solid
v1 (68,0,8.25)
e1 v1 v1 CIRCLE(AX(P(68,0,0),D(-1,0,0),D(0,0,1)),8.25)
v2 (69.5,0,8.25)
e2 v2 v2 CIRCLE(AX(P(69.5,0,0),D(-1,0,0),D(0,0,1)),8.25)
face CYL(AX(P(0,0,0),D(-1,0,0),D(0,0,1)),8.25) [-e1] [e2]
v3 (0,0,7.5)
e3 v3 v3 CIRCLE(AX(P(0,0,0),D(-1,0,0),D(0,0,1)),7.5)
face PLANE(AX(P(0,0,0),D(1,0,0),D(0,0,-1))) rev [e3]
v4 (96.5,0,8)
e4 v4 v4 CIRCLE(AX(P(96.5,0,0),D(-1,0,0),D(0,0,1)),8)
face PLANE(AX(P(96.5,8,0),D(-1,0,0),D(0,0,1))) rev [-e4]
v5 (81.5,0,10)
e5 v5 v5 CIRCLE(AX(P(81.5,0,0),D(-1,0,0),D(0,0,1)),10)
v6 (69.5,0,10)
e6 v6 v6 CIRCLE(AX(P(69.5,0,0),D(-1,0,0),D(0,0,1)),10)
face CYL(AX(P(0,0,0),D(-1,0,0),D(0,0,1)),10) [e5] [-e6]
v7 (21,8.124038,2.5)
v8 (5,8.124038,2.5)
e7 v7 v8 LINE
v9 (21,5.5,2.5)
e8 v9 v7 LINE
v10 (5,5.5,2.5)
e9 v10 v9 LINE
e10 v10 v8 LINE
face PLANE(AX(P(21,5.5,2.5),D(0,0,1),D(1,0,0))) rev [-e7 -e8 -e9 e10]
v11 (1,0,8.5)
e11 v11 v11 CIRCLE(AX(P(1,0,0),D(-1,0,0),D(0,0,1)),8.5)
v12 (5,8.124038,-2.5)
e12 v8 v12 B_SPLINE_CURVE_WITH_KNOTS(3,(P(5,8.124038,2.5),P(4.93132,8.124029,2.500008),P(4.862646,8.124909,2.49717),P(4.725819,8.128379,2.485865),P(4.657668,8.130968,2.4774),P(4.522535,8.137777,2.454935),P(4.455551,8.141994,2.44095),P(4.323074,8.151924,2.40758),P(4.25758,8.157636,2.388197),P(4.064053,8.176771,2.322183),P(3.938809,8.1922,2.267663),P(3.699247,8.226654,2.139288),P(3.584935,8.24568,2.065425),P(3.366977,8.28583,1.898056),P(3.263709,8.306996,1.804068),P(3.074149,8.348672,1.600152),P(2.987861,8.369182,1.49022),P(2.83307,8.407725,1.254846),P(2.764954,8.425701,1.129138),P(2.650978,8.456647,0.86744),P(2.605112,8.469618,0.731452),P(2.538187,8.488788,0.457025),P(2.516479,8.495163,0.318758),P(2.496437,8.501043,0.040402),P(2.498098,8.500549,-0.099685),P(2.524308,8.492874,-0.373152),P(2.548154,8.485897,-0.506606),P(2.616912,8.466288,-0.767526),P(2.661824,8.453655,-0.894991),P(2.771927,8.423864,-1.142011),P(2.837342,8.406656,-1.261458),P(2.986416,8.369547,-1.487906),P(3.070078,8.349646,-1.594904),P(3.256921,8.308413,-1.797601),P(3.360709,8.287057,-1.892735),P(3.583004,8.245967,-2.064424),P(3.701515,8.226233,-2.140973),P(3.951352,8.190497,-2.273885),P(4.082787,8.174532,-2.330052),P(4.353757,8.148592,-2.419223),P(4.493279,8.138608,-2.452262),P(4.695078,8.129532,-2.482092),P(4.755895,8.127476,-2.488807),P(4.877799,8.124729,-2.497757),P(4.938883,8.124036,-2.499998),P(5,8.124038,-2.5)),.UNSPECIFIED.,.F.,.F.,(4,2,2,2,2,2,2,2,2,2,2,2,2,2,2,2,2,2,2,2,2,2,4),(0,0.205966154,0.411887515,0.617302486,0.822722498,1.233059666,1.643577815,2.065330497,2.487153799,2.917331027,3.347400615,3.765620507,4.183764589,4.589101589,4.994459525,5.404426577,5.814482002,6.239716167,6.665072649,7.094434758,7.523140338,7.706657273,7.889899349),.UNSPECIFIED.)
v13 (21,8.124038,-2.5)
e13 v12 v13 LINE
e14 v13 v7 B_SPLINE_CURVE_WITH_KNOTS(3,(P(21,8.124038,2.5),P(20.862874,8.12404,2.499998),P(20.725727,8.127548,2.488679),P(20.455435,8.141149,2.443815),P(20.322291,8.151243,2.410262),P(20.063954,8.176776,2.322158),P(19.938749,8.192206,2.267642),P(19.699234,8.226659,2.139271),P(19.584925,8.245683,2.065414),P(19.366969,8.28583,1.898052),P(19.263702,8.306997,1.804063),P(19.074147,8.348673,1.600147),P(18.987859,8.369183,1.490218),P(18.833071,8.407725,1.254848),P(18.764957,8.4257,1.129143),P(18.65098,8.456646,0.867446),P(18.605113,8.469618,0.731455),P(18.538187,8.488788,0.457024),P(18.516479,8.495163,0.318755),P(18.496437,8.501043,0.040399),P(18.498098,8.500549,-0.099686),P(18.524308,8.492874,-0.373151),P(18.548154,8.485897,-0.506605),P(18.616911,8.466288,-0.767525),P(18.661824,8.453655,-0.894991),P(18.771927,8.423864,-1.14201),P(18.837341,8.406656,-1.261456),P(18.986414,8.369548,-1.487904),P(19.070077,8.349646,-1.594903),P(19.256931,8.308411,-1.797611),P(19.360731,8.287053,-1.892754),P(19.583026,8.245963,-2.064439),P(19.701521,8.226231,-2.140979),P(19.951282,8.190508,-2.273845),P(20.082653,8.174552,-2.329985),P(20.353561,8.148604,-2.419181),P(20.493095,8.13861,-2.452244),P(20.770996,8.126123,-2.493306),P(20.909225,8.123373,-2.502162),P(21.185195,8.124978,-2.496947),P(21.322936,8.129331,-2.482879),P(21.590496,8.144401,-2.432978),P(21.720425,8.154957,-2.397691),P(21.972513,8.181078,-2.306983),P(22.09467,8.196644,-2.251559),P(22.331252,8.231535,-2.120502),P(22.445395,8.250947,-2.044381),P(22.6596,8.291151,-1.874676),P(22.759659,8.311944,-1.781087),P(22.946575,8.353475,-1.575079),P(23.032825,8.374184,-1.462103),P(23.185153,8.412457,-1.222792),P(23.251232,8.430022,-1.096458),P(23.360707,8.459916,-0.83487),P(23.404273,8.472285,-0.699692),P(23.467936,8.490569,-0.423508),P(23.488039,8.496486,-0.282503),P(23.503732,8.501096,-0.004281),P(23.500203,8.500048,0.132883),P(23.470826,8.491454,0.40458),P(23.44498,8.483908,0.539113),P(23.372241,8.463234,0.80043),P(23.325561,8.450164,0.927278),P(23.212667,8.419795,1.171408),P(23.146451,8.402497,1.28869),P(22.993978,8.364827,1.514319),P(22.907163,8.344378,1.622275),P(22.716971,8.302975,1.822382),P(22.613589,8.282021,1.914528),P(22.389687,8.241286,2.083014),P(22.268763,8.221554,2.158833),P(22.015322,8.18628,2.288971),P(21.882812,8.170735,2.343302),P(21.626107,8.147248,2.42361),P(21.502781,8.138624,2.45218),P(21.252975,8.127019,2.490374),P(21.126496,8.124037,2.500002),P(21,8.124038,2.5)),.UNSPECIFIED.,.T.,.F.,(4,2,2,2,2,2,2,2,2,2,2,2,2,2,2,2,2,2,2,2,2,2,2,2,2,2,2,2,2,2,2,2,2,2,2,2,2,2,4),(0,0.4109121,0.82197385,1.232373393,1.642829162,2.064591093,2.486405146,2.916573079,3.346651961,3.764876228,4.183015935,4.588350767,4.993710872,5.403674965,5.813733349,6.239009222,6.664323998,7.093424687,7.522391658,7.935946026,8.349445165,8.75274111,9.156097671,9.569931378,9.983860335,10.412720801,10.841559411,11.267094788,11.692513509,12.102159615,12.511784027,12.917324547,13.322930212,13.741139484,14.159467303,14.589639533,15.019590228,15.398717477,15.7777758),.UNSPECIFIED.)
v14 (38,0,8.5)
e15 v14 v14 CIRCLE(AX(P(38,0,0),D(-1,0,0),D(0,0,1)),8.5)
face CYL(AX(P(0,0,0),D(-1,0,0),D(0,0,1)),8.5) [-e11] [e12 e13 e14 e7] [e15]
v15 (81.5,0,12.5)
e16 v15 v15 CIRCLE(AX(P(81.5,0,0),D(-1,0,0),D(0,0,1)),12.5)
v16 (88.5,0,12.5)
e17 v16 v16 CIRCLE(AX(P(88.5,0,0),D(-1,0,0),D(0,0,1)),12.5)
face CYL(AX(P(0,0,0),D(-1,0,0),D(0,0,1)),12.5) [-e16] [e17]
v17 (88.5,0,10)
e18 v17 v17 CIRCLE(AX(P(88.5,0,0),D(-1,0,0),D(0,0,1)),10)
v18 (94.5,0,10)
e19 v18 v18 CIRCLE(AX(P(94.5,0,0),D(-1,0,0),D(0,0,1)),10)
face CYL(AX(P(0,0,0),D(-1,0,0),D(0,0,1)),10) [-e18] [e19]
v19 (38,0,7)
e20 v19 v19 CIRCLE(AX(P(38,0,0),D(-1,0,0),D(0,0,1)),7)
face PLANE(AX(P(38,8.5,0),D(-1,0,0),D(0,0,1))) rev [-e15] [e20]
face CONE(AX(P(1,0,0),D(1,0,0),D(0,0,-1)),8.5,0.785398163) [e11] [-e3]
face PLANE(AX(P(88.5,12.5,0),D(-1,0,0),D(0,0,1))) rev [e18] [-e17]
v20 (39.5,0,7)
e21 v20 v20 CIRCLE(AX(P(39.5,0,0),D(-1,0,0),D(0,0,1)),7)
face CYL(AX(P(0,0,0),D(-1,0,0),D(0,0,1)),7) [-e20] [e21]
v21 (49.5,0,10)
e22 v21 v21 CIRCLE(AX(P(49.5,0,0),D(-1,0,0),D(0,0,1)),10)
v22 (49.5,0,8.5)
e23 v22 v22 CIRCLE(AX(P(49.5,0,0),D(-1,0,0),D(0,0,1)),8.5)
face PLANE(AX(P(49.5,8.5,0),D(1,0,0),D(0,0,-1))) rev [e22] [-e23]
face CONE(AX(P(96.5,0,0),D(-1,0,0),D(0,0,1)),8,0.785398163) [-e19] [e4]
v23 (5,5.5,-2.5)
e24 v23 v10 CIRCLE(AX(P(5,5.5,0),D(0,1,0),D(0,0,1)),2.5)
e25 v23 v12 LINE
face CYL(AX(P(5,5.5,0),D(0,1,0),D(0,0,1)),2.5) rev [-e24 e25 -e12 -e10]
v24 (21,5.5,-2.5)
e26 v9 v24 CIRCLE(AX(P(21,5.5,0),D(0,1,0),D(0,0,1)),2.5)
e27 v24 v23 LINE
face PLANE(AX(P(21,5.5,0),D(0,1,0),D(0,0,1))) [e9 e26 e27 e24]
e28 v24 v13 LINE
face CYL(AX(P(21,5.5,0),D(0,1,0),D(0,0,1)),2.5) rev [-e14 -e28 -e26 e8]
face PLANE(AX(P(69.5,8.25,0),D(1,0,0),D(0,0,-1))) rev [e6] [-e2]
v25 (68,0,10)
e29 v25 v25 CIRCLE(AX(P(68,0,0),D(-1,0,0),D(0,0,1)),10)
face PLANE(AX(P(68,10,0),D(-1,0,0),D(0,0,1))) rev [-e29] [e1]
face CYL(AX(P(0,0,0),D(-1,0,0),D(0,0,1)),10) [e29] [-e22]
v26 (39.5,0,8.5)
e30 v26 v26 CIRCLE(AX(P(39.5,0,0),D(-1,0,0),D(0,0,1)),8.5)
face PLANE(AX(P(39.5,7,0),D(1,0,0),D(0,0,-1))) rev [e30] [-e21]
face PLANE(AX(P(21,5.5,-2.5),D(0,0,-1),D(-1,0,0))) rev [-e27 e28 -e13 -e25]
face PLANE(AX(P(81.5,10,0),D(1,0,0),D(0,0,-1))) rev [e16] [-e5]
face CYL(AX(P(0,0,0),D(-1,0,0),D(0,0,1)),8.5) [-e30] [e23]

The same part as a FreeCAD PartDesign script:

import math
import FreeCAD as App
import Part
import Sketcher
from FreeCAD import Vector
Q = App.Units.Quantity


def add_polygon(sketch, points):
    """Adds a closed chain of lines whose ends are joined by coincident constraints."""
    first, n = sketch.GeometryCount, len(points)
    for a, b in zip(points, points[1:] + points[:1]):
        sketch.addGeometry(Part.LineSegment(App.Vector(*a, 0), App.Vector(*b, 0)), False)
    for i in range(n):
        sketch.addConstraint(Sketcher.Constraint("Coincident", first + i, 2, first + (i + 1) % n, 1))

doc = App.newDocument("Part")
body = doc.addObject("PartDesign::Body", "Body")

sketch1 = doc.addObject("Sketcher::SketchObject", "Sketch")
body.addObject(sketch1)
sketch1.AttachmentSupport = (doc.XY_Plane, [""])
sketch1.MapMode = "FlatFace"
add_polygon(sketch1, [(0, 7.5), (0, 0), (96.5, 0), (96.5, 8), (94.5, 10), (88.5, 10), (88.5, 12.5), (81.5, 12.5), (81.5, 10), (69.5, 10), (69.5, 8.2), (68, 8.2), (68, 10), (49.5, 10), (49.5, 8.5), (39.5, 8.5), (39.5, 7), (38, 7), (38, 8.5), (1, 8.5)])
sketch1.addConstraint(Sketcher.Constraint("Vertical", 0))
sketch1.addConstraint(Sketcher.Constraint("Horizontal", 1))
sketch1.addConstraint(Sketcher.Constraint("Vertical", 2))
sketch1.addConstraint(Sketcher.Constraint("Horizontal", 4))
sketch1.addConstraint(Sketcher.Constraint("Vertical", 5))
sketch1.addConstraint(Sketcher.Constraint("Horizontal", 6))
sketch1.addConstraint(Sketcher.Constraint("Vertical", 7))
sketch1.addConstraint(Sketcher.Constraint("Horizontal", 8))
sketch1.addConstraint(Sketcher.Constraint("Vertical", 9))
sketch1.addConstraint(Sketcher.Constraint("Horizontal", 10))
sketch1.addConstraint(Sketcher.Constraint("Vertical", 11))
sketch1.addConstraint(Sketcher.Constraint("Horizontal", 12))
sketch1.addConstraint(Sketcher.Constraint("Vertical", 13))
sketch1.addConstraint(Sketcher.Constraint("Horizontal", 14))
sketch1.addConstraint(Sketcher.Constraint("Vertical", 15))
sketch1.addConstraint(Sketcher.Constraint("Horizontal", 16))
sketch1.addConstraint(Sketcher.Constraint("Vertical", 17))
sketch1.addConstraint(Sketcher.Constraint("Horizontal", 18))
sketch1.addConstraint(Sketcher.Constraint("Coincident", 0, 2, -1, 1))
sketch1.addConstraint(Sketcher.Constraint("Perpendicular", 3, 19))
sketch1.addConstraint(Sketcher.Constraint("Horizontal", 4, 2, 7, 2))
sketch1.addConstraint(Sketcher.Constraint("Horizontal", 8, 2, 11, 2))
sketch1.addConstraint(Sketcher.Constraint("Horizontal", 14, 2, 17, 2))
sketch1.addConstraint(Sketcher.Constraint("Equal", 10, 16))
sketch1.addConstraint(Sketcher.Constraint("Equal", 16, 13))
sketch1.addConstraint(Sketcher.Constraint("Equal", 13, 15))
sketch1.addConstraint(Sketcher.Constraint("DistanceX", 4, 2, 4, 1, Q("6 mm")))
sketch1.addConstraint(Sketcher.Constraint("DistanceX", 6, 2, 6, 1, Q("7 mm")))
sketch1.addConstraint(Sketcher.Constraint("DistanceX", 8, 2, 8, 1, Q("12 mm")))
sketch1.addConstraint(Sketcher.Constraint("DistanceX", 14, 2, 14, 1, Q("10 mm")))
sketch1.addConstraint(Sketcher.Constraint("DistanceX", 18, 2, 18, 1, Q("37 mm")))
sketch1.addConstraint(Sketcher.Constraint("DistanceY", 2, 1, 2, 2, Q("8 mm")))
sketch1.addConstraint(Sketcher.Constraint("Angle", 3, Q("135 deg")))
sketch1.addConstraint(Sketcher.Constraint("DistanceX", 1, 1, 1, 2, Q("96.5 mm")))
sketch1.addConstraint(Sketcher.Constraint("DistanceX", 10, 2, 10, 1, Q("1.5 mm")))
sketch1.addConstraint(Sketcher.Constraint("DistanceX", 12, 2, 12, 1, Q("18.5 mm")))
sketch1.addConstraint(Sketcher.Constraint("DistanceY", 0, 2, 0, 1, Q("7.5 mm")))
sketch1.addConstraint(Sketcher.Constraint("DistanceY", 5, 1, 5, 2, Q("2.5 mm")))
sketch1.addConstraint(Sketcher.Constraint("DistanceY", 9, 2, 9, 1, Q("1.75 mm")))
revolution = doc.addObject("PartDesign::Revolution", "Revolution")
body.addObject(revolution)
revolution.Profile = sketch1
revolution.ReferenceAxis = (sketch1, ["H_Axis"])
revolution.Angle = 360

sketch2 = doc.addObject("Sketcher::SketchObject", "Sketch001")
body.addObject(sketch2)
sketch2.AttachmentSupport = (doc.XZ_Plane, [""])
sketch2.MapMode = "FlatFace"
sketch2.AttachmentOffset = App.Placement(Vector(0, 0, -10), App.Rotation())
sketch2.addGeometry(Part.LineSegment(Vector(5, 2.5, 0), Vector(21, 2.5, 0)), False)
sketch2.addGeometry(Part.ArcOfCircle(Part.Circle(Vector(21, 0, 0), Vector(0, 0, 1), 2.5), math.radians(-90), math.radians(90)), False)
sketch2.addGeometry(Part.LineSegment(Vector(21, -2.5, 0), Vector(5, -2.5, 0)), False)
sketch2.addGeometry(Part.ArcOfCircle(Part.Circle(Vector(5, 0, 0), Vector(0, 0, 1), 2.5), math.radians(90), math.radians(270)), False)
sketch2.addConstraint(Sketcher.Constraint("Tangent", 0, 2, 1, 2))
sketch2.addConstraint(Sketcher.Constraint("Tangent", 1, 1, 2, 1))
sketch2.addConstraint(Sketcher.Constraint("Tangent", 2, 2, 3, 2))
sketch2.addConstraint(Sketcher.Constraint("Tangent", 3, 1, 0, 1))
sketch2.addConstraint(Sketcher.Constraint("Horizontal", 0))
sketch2.addConstraint(Sketcher.Constraint("Horizontal", 2))
sketch2.addConstraint(Sketcher.Constraint("PointOnObject", 1, 3, -1))
sketch2.addConstraint(Sketcher.Constraint("Radius", 1, Q("2.5 mm")))
sketch2.addConstraint(Sketcher.Constraint("DistanceX", 0, 1, 0, 2, Q("16 mm")))
sketch2.addConstraint(Sketcher.Constraint("DistanceX", -1, 1, 1, 3, Q("21 mm")))
pocket1 = doc.addObject("PartDesign::Pocket", "Pocket")
body.addObject(pocket1)
pocket1.Profile = sketch2
pocket1.Length = 4.5
pocket1.Reversed = True

doc.recompute()
